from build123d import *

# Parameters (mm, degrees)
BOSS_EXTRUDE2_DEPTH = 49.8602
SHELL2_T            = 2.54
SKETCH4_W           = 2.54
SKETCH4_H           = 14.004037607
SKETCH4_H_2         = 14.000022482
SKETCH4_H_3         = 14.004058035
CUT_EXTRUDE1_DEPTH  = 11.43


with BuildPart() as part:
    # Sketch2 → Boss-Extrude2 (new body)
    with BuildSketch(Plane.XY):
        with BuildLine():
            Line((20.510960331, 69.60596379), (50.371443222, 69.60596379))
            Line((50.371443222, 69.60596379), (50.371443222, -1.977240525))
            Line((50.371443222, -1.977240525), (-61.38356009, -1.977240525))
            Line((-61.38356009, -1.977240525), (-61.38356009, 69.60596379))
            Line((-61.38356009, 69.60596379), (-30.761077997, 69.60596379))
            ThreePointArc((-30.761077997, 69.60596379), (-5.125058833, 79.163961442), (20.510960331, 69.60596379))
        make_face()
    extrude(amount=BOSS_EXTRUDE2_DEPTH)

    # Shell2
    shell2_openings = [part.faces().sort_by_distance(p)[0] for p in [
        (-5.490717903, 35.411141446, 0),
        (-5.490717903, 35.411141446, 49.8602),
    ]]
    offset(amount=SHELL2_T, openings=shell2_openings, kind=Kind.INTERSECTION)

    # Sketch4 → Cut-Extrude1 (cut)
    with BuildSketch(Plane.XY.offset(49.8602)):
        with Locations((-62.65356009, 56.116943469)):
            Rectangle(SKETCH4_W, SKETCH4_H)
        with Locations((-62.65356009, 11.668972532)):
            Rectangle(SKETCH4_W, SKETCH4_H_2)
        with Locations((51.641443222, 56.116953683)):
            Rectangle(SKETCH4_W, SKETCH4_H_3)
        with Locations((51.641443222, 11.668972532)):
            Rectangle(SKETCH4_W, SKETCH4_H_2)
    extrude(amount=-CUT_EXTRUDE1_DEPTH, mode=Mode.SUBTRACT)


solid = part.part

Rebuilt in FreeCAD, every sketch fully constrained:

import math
import FreeCAD as App
import Part
import Sketcher
from FreeCAD import Vector
Q = App.Units.Quantity


def faces_at(feature, points):
    """Names of the faces that lie closest to the given points."""
    faces = feature.Shape.Faces
    near = lambda p: min(range(len(faces)), key=lambda i: faces[i].distToShape(Part.Vertex(*p))[0])
    return sorted({f"Face{near(p) + 1}" for p in points})


def add_polygon(sketch, points):
    """Adds a closed chain of lines whose ends are joined by coincident constraints."""
    first, n = sketch.GeometryCount, len(points)
    for a, b in zip(points, points[1:] + points[:1]):
        sketch.addGeometry(Part.LineSegment(App.Vector(*a, 0), App.Vector(*b, 0)), False)
    for i in range(n):
        sketch.addConstraint(Sketcher.Constraint("Coincident", first + i, 2, first + (i + 1) % n, 1))

doc = App.newDocument("Part")
params = doc.addObject("Spreadsheet::Sheet", "Params")
for row, (alias, value) in enumerate([
    ("pad1_length", "1.963 in"),
    ("thickness_wall", "0.1 in"),
    ("sketch2_width", "0.1 in"),
    ("pocket1_length", "0.45 in"),
], start=1):
    params.set(f"A{row}", alias)
    params.set(f"B{row}", "=" + value)
    params.setAlias(f"B{row}", alias)

body = doc.addObject("PartDesign::Body", "Body")

# Sketch on XY plane
sketch1 = body.newObject("Sketcher::SketchObject", "Sketch")
sketch1.AttachmentSupport = (doc.getObject("XY_Plane"), [""])
sketch1.MapMode = "FlatFace"
sketch1.addGeometry([
    Part.LineSegment(Vector(50.371443, 69.605964, 0), Vector(20.51096, 69.605964, 0)),  # 0
    Part.ArcOfCircle(Part.Circle(Vector(-5.125059, 40.00509, 0), Vector(0, 0, 1), 39.158871), math.radians(49.105598), math.radians(130.894402)),  # 1
    Part.LineSegment(Vector(-30.761078, 69.605964, 0), Vector(-61.38356, 69.605964, 0)),  # 2
    Part.LineSegment(Vector(-61.38356, 69.605964, 0), Vector(-61.38356, -1.977241, 0)),  # 3
    Part.LineSegment(Vector(-61.38356, -1.977241, 0), Vector(50.371443, -1.977241, 0)),  # 4
    Part.LineSegment(Vector(50.371443, -1.977241, 0), Vector(50.371443, 69.605964, 0)),  # 5
], False)
sketch1.addConstraint([
    Sketcher.Constraint("Coincident", 0, 2, 1, 1),
    Sketcher.Constraint("Coincident", 1, 2, 2, 1),
    Sketcher.Constraint("Coincident", 2, 2, 3, 1),
    Sketcher.Constraint("Coincident", 3, 2, 4, 1),
    Sketcher.Constraint("Coincident", 4, 2, 5, 1),
    Sketcher.Constraint("Coincident", 5, 2, 0, 1),
    Sketcher.Constraint("Horizontal", 0),
    Sketcher.Constraint("Horizontal", 2),
    Sketcher.Constraint("Vertical", 3),
    Sketcher.Constraint("Horizontal", 4),
    Sketcher.Constraint("Vertical", 5),
    Sketcher.Constraint("Horizontal", 0, 2, 1, 2),
    Sketcher.Constraint("Radius", 1, Q("39.158871 mm")),
    Sketcher.Constraint("DistanceX", 2, 2, 1, 3, Q("56.258501 mm")),
    Sketcher.Constraint("DistanceX", 0, 2, 0, 1, Q("29.860483 mm")),
    Sketcher.Constraint("DistanceX", 2, 2, 2, 1, Q("30.622482 mm")),
    Sketcher.Constraint("DistanceY", 3, 2, 3, 1, Q("71.583204 mm")),
    Sketcher.Constraint("DistanceX", 1, 3, -1, 1, Q("5.125059 mm")),
    Sketcher.Constraint("DistanceY", -1, 1, 1, 3, Q("40.00509 mm")),
])
pad1 = body.newObject("PartDesign::Pad", "Pad")
pad1.Profile = sketch1
pad1.setExpression("Length", "Params.pad1_length")
doc.recompute()

thickness = body.newObject("PartDesign::Thickness", "Thickness")
thickness.Base = (pad1, faces_at(pad1, [(-5.506, 38.593, 0), (-5.506, 38.593, 49.86)]))
thickness.setExpression("Value", "Params.thickness_wall")
thickness.Reversed = False
thickness.Join = "Intersection"

# Sketch on XY plane
sketch2 = body.newObject("Sketcher::SketchObject", "Sketch001")
sketch2.AttachmentSupport = (doc.getObject("XY_Plane"), [""])
sketch2.MapMode = "FlatFace"
sketch2.AttachmentOffset = App.Placement(Vector(0, 0, 1.963 * 25.4), App.Rotation())
add_polygon(sketch2, [(-63.92356, 63.118962), (-63.92356, 49.114925), (-61.38356, 49.114925), (-61.38356, 63.118962)])  # lines 0-3
add_polygon(sketch2, [(-63.92356, 18.668984), (-63.92356, 4.668961), (-61.38356, 4.668961), (-61.38356, 18.668984)])  # lines 4-7
add_polygon(sketch2, [(50.371443, 63.118983), (50.371443, 49.114925), (52.911443, 49.114925), (52.911443, 63.118983)])  # lines 8-11
add_polygon(sketch2, [(50.371443, 18.668984), (50.371443, 4.668961), (52.911443, 4.668961), (52.911443, 18.668984)])  # lines 12-15
sketch2.addConstraint([
    Sketcher.Constraint("Vertical", 0),
    Sketcher.Constraint("Horizontal", 1),
    Sketcher.Constraint("Vertical", 2),
    Sketcher.Constraint("Horizontal", 3),
    Sketcher.Constraint("Vertical", 4),
    Sketcher.Constraint("Horizontal", 5),
    Sketcher.Constraint("Vertical", 6),
    Sketcher.Constraint("Horizontal", 7),
    Sketcher.Constraint("Vertical", 8),
    Sketcher.Constraint("Horizontal", 9),
    Sketcher.Constraint("Vertical", 10),
    Sketcher.Constraint("Horizontal", 11),
    Sketcher.Constraint("Vertical", 12),
    Sketcher.Constraint("Horizontal", 13),
    Sketcher.Constraint("Vertical", 14),
    Sketcher.Constraint("Horizontal", 15),
    Sketcher.Constraint("Horizontal", 1, 2, 8, 2),
    Sketcher.Constraint("Horizontal", 5, 2, 12, 2),
    Sketcher.Constraint("Horizontal", 7, 2, 14, 2),
    Sketcher.Constraint("Vertical", 3, 2, 4, 2),
    Sketcher.Constraint("Vertical", 2, 2, 5, 2),
    Sketcher.Constraint("Vertical", 11, 2, 12, 2),
    Sketcher.Constraint("Vertical", 10, 2, 13, 2),
    Sketcher.Constraint("Equal", 7, 9),
    Sketcher.Constraint("DistanceX", 1, 1, 1, 2, Q("0.1 in")),
    Sketcher.Constraint("DistanceY", 14, 2, 10, 2, Q("1.75 in")),
    Sketcher.Constraint("DistanceY", 8, 2, 8, 1, Q("14.004058 mm")),
    Sketcher.Constraint("DistanceY", 4, 2, 3, 2, Q("58.450001 mm")),
    Sketcher.Constraint("DistanceY", 0, 2, 0, 1, Q("14.004038 mm")),
    Sketcher.Constraint("DistanceX", 0, 2, -1, 1, Q("63.92356 mm")),
    Sketcher.Constraint("DistanceY", -1, 1, 4, 2, Q("4.668961 mm")),
    Sketcher.Constraint("DistanceX", -1, 1, 8, 2, Q("50.371443 mm")),
])
sketch2.setExpression("Constraints[40]", "Params.sketch2_width")
pocket1 = body.newObject("PartDesign::Pocket", "Pocket")
pocket1.Profile = sketch2
pocket1.setExpression("Length", "Params.pocket1_length")

doc.recompute()
